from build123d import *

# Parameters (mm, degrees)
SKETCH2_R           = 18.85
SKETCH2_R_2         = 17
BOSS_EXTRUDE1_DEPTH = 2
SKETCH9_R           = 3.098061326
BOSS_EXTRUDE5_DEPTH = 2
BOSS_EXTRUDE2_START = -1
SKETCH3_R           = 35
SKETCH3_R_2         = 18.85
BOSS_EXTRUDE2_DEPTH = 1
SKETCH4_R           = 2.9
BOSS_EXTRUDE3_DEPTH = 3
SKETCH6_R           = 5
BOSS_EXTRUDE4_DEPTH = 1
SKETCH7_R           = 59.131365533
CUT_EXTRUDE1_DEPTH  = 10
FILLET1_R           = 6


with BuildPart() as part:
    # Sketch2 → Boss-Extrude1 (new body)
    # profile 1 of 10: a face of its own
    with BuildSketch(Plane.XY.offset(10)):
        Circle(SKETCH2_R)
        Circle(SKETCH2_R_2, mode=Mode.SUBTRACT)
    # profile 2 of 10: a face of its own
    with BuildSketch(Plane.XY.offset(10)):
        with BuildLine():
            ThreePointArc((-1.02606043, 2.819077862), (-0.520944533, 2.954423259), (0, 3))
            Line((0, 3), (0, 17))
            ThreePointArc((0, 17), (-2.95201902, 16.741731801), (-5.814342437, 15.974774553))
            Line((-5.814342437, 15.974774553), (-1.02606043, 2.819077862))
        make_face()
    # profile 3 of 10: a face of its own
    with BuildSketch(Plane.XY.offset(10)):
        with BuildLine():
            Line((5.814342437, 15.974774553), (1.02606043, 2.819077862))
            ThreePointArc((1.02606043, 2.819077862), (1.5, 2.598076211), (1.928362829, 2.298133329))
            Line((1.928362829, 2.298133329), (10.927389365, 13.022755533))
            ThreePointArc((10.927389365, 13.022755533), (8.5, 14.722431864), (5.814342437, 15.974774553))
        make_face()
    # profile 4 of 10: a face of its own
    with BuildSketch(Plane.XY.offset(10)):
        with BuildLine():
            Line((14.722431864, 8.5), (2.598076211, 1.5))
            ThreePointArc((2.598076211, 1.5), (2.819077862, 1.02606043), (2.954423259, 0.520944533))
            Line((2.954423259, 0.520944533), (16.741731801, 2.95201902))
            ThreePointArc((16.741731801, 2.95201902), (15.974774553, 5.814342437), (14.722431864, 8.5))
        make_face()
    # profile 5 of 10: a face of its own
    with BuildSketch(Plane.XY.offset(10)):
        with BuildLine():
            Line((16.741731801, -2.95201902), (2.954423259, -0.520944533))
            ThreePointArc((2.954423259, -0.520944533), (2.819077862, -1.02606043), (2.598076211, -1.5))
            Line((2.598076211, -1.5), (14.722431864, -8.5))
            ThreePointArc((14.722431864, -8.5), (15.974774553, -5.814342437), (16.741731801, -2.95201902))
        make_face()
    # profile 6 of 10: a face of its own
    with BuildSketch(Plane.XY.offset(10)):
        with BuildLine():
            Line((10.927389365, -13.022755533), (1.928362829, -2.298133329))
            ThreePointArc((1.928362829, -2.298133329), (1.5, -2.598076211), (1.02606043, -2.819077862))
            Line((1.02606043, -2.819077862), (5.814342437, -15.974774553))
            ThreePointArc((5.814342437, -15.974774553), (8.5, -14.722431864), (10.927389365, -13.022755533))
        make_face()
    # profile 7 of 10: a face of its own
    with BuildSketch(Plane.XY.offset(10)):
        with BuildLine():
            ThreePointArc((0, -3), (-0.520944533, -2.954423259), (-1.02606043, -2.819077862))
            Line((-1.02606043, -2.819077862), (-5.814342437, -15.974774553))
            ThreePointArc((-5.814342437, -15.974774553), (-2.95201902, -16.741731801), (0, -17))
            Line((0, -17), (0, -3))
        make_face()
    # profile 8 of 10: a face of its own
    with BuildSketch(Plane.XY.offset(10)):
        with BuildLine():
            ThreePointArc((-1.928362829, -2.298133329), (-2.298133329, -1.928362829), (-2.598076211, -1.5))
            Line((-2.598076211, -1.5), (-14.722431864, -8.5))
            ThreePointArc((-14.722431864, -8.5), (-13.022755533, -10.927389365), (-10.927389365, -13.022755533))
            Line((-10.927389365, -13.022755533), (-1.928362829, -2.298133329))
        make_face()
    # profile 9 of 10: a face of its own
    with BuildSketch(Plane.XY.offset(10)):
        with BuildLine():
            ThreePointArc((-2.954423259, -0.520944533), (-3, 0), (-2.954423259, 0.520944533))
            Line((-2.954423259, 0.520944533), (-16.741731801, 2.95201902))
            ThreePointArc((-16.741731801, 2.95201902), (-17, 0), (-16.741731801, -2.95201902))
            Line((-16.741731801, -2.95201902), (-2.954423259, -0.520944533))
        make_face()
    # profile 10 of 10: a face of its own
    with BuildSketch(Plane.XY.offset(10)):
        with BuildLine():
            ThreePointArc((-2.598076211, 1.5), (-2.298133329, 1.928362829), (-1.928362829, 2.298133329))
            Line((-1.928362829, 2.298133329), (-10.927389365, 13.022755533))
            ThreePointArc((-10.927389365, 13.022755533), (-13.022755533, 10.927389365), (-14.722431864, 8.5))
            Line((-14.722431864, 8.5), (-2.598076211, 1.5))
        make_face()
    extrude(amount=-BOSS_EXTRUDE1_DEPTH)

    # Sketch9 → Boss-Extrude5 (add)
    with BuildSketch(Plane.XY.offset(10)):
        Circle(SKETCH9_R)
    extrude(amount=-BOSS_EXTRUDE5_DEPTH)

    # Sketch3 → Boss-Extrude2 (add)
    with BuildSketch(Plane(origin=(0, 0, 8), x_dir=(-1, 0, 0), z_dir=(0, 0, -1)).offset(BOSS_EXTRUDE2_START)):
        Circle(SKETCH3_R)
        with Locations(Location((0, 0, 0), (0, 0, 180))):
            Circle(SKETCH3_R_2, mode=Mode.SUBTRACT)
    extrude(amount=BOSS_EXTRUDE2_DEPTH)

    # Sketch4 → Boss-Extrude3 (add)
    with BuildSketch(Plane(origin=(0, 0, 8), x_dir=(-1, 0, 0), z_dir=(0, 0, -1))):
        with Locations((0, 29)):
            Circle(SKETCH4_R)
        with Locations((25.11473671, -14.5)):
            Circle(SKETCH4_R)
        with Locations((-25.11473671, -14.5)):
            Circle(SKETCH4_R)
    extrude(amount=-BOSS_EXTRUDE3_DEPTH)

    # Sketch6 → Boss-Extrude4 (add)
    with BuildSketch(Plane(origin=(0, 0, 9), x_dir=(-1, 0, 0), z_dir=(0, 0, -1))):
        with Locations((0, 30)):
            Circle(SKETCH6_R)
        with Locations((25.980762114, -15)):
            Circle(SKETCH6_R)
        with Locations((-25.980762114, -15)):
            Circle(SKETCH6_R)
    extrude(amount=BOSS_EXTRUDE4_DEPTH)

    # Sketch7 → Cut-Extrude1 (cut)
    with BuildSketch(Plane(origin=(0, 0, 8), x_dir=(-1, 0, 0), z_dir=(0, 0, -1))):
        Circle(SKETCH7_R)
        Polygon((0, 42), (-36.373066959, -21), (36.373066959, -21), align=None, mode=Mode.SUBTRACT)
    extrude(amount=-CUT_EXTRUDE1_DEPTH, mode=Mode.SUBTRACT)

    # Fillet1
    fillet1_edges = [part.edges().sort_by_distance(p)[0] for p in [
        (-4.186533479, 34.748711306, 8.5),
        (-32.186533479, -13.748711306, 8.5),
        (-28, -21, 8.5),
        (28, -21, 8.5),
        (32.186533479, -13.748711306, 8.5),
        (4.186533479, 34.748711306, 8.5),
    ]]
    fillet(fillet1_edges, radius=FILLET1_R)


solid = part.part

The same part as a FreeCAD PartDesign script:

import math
import FreeCAD as App
import Part
import Sketcher
Q = App.Units.Quantity


def edges_at(feature, points):
    """Names of the edges that pass closest to the given points."""
    edges = feature.Shape.Edges
    near = lambda p: min(range(len(edges)), key=lambda i: edges[i].distToShape(Part.Vertex(*p))[0])
    return sorted({f"Edge{near(p) + 1}" for p in points})

doc = App.newDocument("Part")
body = doc.addObject("PartDesign::Body", "Body")

# Sketch on XY plane
sketch1 = body.newObject("Sketcher::SketchObject", "Sketch")
sketch1.AttachmentSupport = (doc.getObject("XY_Plane"), [""])
sketch1.MapMode = "FlatFace"
sketch1.AttachmentOffset = App.Placement(App.Vector(0, 0, 10), App.Rotation())
sketch1.addGeometry(Part.Circle(App.Vector(0, 0, 0), App.Vector(0, 0, 1), 18.9), False)
sketch1.addGeometry(Part.ArcOfCircle(Part.Circle(App.Vector(0, 0, 0), App.Vector(0, 0, 1), 17), math.radians(-10), math.radians(10)), False)
sketch1.addGeometry(Part.LineSegment(App.Vector(16.7, -3, 0), App.Vector(3, -0.5, 0)), False)
sketch1.addGeometry(Part.ArcOfCircle(Part.Circle(App.Vector(0, 0, 0), App.Vector(0, 0, 1), 3), math.radians(-30), math.radians(-10)), False)
sketch1.addGeometry(Part.LineSegment(App.Vector(2.6, -1.5, 0), App.Vector(14.7, -8.5, 0)), False)
sketch1.addGeometry(Part.ArcOfCircle(Part.Circle(App.Vector(0, 0, 0), App.Vector(0, 0, 1), 17), math.radians(-50), math.radians(-30)), False)
sketch1.addGeometry(Part.LineSegment(App.Vector(10.9, -13, 0), App.Vector(1.9, -2.3, 0)), False)
sketch1.addGeometry(Part.ArcOfCircle(Part.Circle(App.Vector(0, 0, 0), App.Vector(0, 0, 1), 3), math.radians(-70), math.radians(-50)), False)
sketch1.addGeometry(Part.LineSegment(App.Vector(1, -2.8, 0), App.Vector(5.8, -16, 0)), False)
sketch1.addGeometry(Part.ArcOfCircle(Part.Circle(App.Vector(0, 0, 0), App.Vector(0, 0, 1), 17), math.radians(-90), math.radians(-70)), False)
sketch1.addGeometry(Part.LineSegment(App.Vector(0, -17, 0), App.Vector(0, -3, 0)), False)
sketch1.addGeometry(Part.ArcOfCircle(Part.Circle(App.Vector(0, 0, 0), App.Vector(0, 0, 1), 3), math.radians(-110), math.radians(-90)), False)
sketch1.addGeometry(Part.LineSegment(App.Vector(-1, -2.8, 0), App.Vector(-5.8, -16, 0)), False)
sketch1.addGeometry(Part.ArcOfCircle(Part.Circle(App.Vector(0, 0, 0), App.Vector(0, 0, 1), 17), math.radians(-130), math.radians(-110)), False)
sketch1.addGeometry(Part.LineSegment(App.Vector(-10.9, -13, 0), App.Vector(-1.9, -2.3, 0)), False)
sketch1.addGeometry(Part.ArcOfCircle(Part.Circle(App.Vector(0, 0, 0), App.Vector(0, 0, 1), 3), math.radians(-150), math.radians(-130)), False)
sketch1.addGeometry(Part.LineSegment(App.Vector(-2.6, -1.5, 0), App.Vector(-14.7, -8.5, 0)), False)
sketch1.addGeometry(Part.ArcOfCircle(Part.Circle(App.Vector(0, 0, 0), App.Vector(0, 0, 1), 17), math.radians(-170), math.radians(-150)), False)
sketch1.addGeometry(Part.LineSegment(App.Vector(-16.7, -3, 0), App.Vector(-3, -0.5, 0)), False)
sketch1.addGeometry(Part.ArcOfCircle(Part.Circle(App.Vector(0, 0, 0), App.Vector(0, 0, 1), 3), math.radians(170), math.radians(190)), False)
sketch1.addGeometry(Part.LineSegment(App.Vector(-3, 0.5, 0), App.Vector(-16.7, 3, 0)), False)
sketch1.addGeometry(Part.ArcOfCircle(Part.Circle(App.Vector(0, 0, 0), App.Vector(0, 0, 1), 17), math.radians(150), math.radians(170)), False)
sketch1.addGeometry(Part.LineSegment(App.Vector(-14.7, 8.5, 0), App.Vector(-2.6, 1.5, 0)), False)
sketch1.addGeometry(Part.ArcOfCircle(Part.Circle(App.Vector(0, 0, 0), App.Vector(0, 0, 1), 3), math.radians(130), math.radians(150)), False)
sketch1.addGeometry(Part.LineSegment(App.Vector(-1.9, 2.3, 0), App.Vector(-10.9, 13, 0)), False)
sketch1.addGeometry(Part.ArcOfCircle(Part.Circle(App.Vector(0, 0, 0), App.Vector(0, 0, 1), 17), math.radians(110), math.radians(130)), False)
sketch1.addGeometry(Part.LineSegment(App.Vector(-5.8, 16, 0), App.Vector(-1, 2.8, 0)), False)
sketch1.addGeometry(Part.ArcOfCircle(Part.Circle(App.Vector(0, 0, 0), App.Vector(0, 0, 1), 3), math.radians(90), math.radians(110)), False)
sketch1.addGeometry(Part.LineSegment(App.Vector(0, 3, 0), App.Vector(0, 17, 0)), False)
sketch1.addGeometry(Part.ArcOfCircle(Part.Circle(App.Vector(0, 0, 0), App.Vector(0, 0, 1), 17), math.radians(70), math.radians(90)), False)
sketch1.addGeometry(Part.LineSegment(App.Vector(5.8, 16, 0), App.Vector(1, 2.8, 0)), False)
sketch1.addGeometry(Part.ArcOfCircle(Part.Circle(App.Vector(0, 0, 0), App.Vector(0, 0, 1), 3), math.radians(50), math.radians(70)), False)
sketch1.addGeometry(Part.LineSegment(App.Vector(1.9, 2.3, 0), App.Vector(10.9, 13, 0)), False)
sketch1.addGeometry(Part.ArcOfCircle(Part.Circle(App.Vector(0, 0, 0), App.Vector(0, 0, 1), 17), math.radians(30), math.radians(50)), False)
sketch1.addGeometry(Part.LineSegment(App.Vector(14.7, 8.5, 0), App.Vector(2.6, 1.5, 0)), False)
sketch1.addGeometry(Part.ArcOfCircle(Part.Circle(App.Vector(0, 0, 0), App.Vector(0, 0, 1), 3), math.radians(10), math.radians(30)), False)
sketch1.addGeometry(Part.LineSegment(App.Vector(3, 0.5, 0), App.Vector(16.7, 3, 0)), False)
sketch1.addConstraint(Sketcher.Constraint("Coincident", 1, 1, 2, 1))
sketch1.addConstraint(Sketcher.Constraint("Coincident", 2, 2, 3, 2))
sketch1.addConstraint(Sketcher.Constraint("Coincident", 3, 1, 4, 1))
sketch1.addConstraint(Sketcher.Constraint("Coincident", 4, 2, 5, 2))
sketch1.addConstraint(Sketcher.Constraint("Coincident", 5, 1, 6, 1))
sketch1.addConstraint(Sketcher.Constraint("Coincident", 6, 2, 7, 2))
sketch1.addConstraint(Sketcher.Constraint("Coincident", 7, 1, 8, 1))
sketch1.addConstraint(Sketcher.Constraint("Coincident", 8, 2, 9, 2))
sketch1.addConstraint(Sketcher.Constraint("Coincident", 9, 1, 10, 1))
sketch1.addConstraint(Sketcher.Constraint("Coincident", 10, 2, 11, 2))
sketch1.addConstraint(Sketcher.Constraint("Coincident", 11, 1, 12, 1))
sketch1.addConstraint(Sketcher.Constraint("Coincident", 12, 2, 13, 2))
sketch1.addConstraint(Sketcher.Constraint("Coincident", 13, 1, 14, 1))
sketch1.addConstraint(Sketcher.Constraint("Coincident", 14, 2, 15, 2))
sketch1.addConstraint(Sketcher.Constraint("Coincident", 15, 1, 16, 1))
sketch1.addConstraint(Sketcher.Constraint("Coincident", 16, 2, 17, 2))
sketch1.addConstraint(Sketcher.Constraint("Coincident", 17, 1, 18, 1))
sketch1.addConstraint(Sketcher.Constraint("Coincident", 18, 2, 19, 2))
sketch1.addConstraint(Sketcher.Constraint("Coincident", 19, 1, 20, 1))
sketch1.addConstraint(Sketcher.Constraint("Coincident", 20, 2, 21, 2))
sketch1.addConstraint(Sketcher.Constraint("Coincident", 21, 1, 22, 1))
sketch1.addConstraint(Sketcher.Constraint("Coincident", 22, 2, 23, 2))
sketch1.addConstraint(Sketcher.Constraint("Coincident", 23, 1, 24, 1))
sketch1.addConstraint(Sketcher.Constraint("Coincident", 24, 2, 25, 2))
sketch1.addConstraint(Sketcher.Constraint("Coincident", 25, 1, 26, 1))
sketch1.addConstraint(Sketcher.Constraint("Coincident", 26, 2, 27, 2))
sketch1.addConstraint(Sketcher.Constraint("Coincident", 27, 1, 28, 1))
sketch1.addConstraint(Sketcher.Constraint("Coincident", 28, 2, 29, 2))
sketch1.addConstraint(Sketcher.Constraint("Coincident", 29, 1, 30, 1))
sketch1.addConstraint(Sketcher.Constraint("Coincident", 30, 2, 31, 2))
sketch1.addConstraint(Sketcher.Constraint("Coincident", 31, 1, 32, 1))
sketch1.addConstraint(Sketcher.Constraint("Coincident", 32, 2, 33, 2))
sketch1.addConstraint(Sketcher.Constraint("Coincident", 33, 1, 34, 1))
sketch1.addConstraint(Sketcher.Constraint("Coincident", 34, 2, 35, 2))
sketch1.addConstraint(Sketcher.Constraint("Coincident", 35, 1, 36, 1))
sketch1.addConstraint(Sketcher.Constraint("Coincident", 36, 2, 1, 2))
sketch1.addConstraint(Sketcher.Constraint("Vertical", 10))
sketch1.addConstraint(Sketcher.Constraint("Vertical", 28))
sketch1.addConstraint(Sketcher.Constraint("Coincident", 0, 3, -1, 1))
sketch1.addConstraint(Sketcher.Constraint("Coincident", 1, 3, -1, 1))
sketch1.addConstraint(Sketcher.Constraint("Coincident", 3, 3, -1, 1))
sketch1.addConstraint(Sketcher.Constraint("Coincident", 5, 3, -1, 1))
sketch1.addConstraint(Sketcher.Constraint("Coincident", 7, 3, -1, 1))
sketch1.addConstraint(Sketcher.Constraint("Coincident", 9, 3, -1, 1))
sketch1.addConstraint(Sketcher.Constraint("Coincident", 11, 3, -1, 1))
sketch1.addConstraint(Sketcher.Constraint("Coincident", 13, 3, -1, 1))
sketch1.addConstraint(Sketcher.Constraint("Coincident", 15, 3, -1, 1))
sketch1.addConstraint(Sketcher.Constraint("Coincident", 17, 3, -1, 1))
sketch1.addConstraint(Sketcher.Constraint("Coincident", 19, 3, -1, 1))
sketch1.addConstraint(Sketcher.Constraint("Coincident", 21, 3, -1, 1))
sketch1.addConstraint(Sketcher.Constraint("Coincident", 23, 3, -1, 1))
sketch1.addConstraint(Sketcher.Constraint("Coincident", 25, 3, -1, 1))
sketch1.addConstraint(Sketcher.Constraint("Coincident", 27, 3, -1, 1))
sketch1.addConstraint(Sketcher.Constraint("Coincident", 29, 3, -1, 1))
sketch1.addConstraint(Sketcher.Constraint("Coincident", 31, 3, -1, 1))
sketch1.addConstraint(Sketcher.Constraint("Coincident", 33, 3, -1, 1))
sketch1.addConstraint(Sketcher.Constraint("Coincident", 35, 3, -1, 1))
sketch1.addConstraint(Sketcher.Constraint("Equal", 1, 5))
sketch1.addConstraint(Sketcher.Constraint("Equal", 3, 7))
sketch1.addConstraint(Sketcher.Constraint("Equal", 5, 9))
sketch1.addConstraint(Sketcher.Constraint("Equal", 7, 11))
sketch1.addConstraint(Sketcher.Constraint("Equal", 9, 13))
sketch1.addConstraint(Sketcher.Constraint("Equal", 11, 15))
sketch1.addConstraint(Sketcher.Constraint("Equal", 13, 17))
sketch1.addConstraint(Sketcher.Constraint("Equal", 15, 19))
sketch1.addConstraint(Sketcher.Constraint("Equal", 17, 21))
sketch1.addConstraint(Sketcher.Constraint("Equal", 19, 23))
sketch1.addConstraint(Sketcher.Constraint("Equal", 21, 25))
sketch1.addConstraint(Sketcher.Constraint("Equal", 23, 27))
sketch1.addConstraint(Sketcher.Constraint("Equal", 25, 29))
sketch1.addConstraint(Sketcher.Constraint("Equal", 27, 31))
sketch1.addConstraint(Sketcher.Constraint("Equal", 29, 33))
sketch1.addConstraint(Sketcher.Constraint("Equal", 31, 35))
sketch1.addConstraint(Sketcher.Constraint("PointOnObject", 9, 1, -2))
sketch1.addConstraint(Sketcher.Constraint("PointOnObject", 27, 1, -2))
sketch1.addConstraint(Sketcher.Constraint("Parallel", 2, 20))
sketch1.addConstraint(Sketcher.Constraint("Parallel", 4, 22))
sketch1.addConstraint(Sketcher.Constraint("Parallel", 6, 24))
sketch1.addConstraint(Sketcher.Constraint("Parallel", 8, 26))
sketch1.addConstraint(Sketcher.Constraint("Parallel", 12, 30))
sketch1.addConstraint(Sketcher.Constraint("Parallel", 14, 32))
sketch1.addConstraint(Sketcher.Constraint("Parallel", 16, 34))
sketch1.addConstraint(Sketcher.Constraint("Parallel", 18, 36))
sketch1.addConstraint(Sketcher.Constraint("Horizontal", 7, 1, 11, 1))
sketch1.addConstraint(Sketcher.Constraint("Horizontal", 8, 2, 12, 2))
sketch1.addConstraint(Sketcher.Constraint("Horizontal", 5, 1, 13, 1))
sketch1.addConstraint(Sketcher.Constraint("Horizontal", 6, 2, 14, 2))
sketch1.addConstraint(Sketcher.Constraint("Horizontal", 3, 1, 15, 1))
sketch1.addConstraint(Sketcher.Constraint("Horizontal", 4, 2, 16, 2))
sketch1.addConstraint(Sketcher.Constraint("Horizontal", 1, 1, 17, 1))
sketch1.addConstraint(Sketcher.Constraint("Horizontal", 2, 2, 18, 2))
sketch1.addConstraint(Sketcher.Constraint("Horizontal", 25, 1, 29, 1))
sketch1.addConstraint(Sketcher.Constraint("Horizontal", 23, 1, 31, 1))
sketch1.addConstraint(Sketcher.Constraint("Horizontal", 21, 1, 33, 1))
sketch1.addConstraint(Sketcher.Constraint("Horizontal", 19, 1, 35, 1))
sketch1.addConstraint(Sketcher.Constraint("Vertical", 18, 2, 19, 1))
sketch1.addConstraint(Sketcher.Constraint("Vertical", 16, 2, 21, 1))
sketch1.addConstraint(Sketcher.Constraint("Vertical", 14, 2, 23, 1))
sketch1.addConstraint(Sketcher.Constraint("Vertical", 12, 2, 25, 1))
sketch1.addConstraint(Sketcher.Constraint("Radius", 1, Q("17 mm")))
sketch1.addConstraint(Sketcher.Constraint("Radius", 3, Q("3 mm")))
sketch1.addConstraint(Sketcher.Constraint("Diameter", 0, Q("37.7 mm")))
sketch1.addConstraint(Sketcher.Constraint("Angle", 2, Q("170 deg")))
sketch1.addConstraint(Sketcher.Constraint("Angle", 4, Q("-30 deg")))
sketch1.addConstraint(Sketcher.Constraint("Angle", 6, Q("130 deg")))
sketch1.addConstraint(Sketcher.Constraint("Angle", 8, Q("-70 deg")))
sketch1.addConstraint(Sketcher.Constraint("DistanceY", 15, 1, 21, 1, Q("10 mm")))
sketch1.addConstraint(Sketcher.Constraint("DistanceX", 4, 2, 1, 1, Q("2.0193 mm")))
sketch1.addConstraint(Sketcher.Constraint("DistanceX", -1, 1, 5, 1, Q("10.927389 mm")))
sketch1.addConstraint(Sketcher.Constraint("DistanceX", -1, 1, 7, 1, Q("1.02606 mm")))
pad1 = body.newObject("PartDesign::Pad", "Pad")
pad1.Profile = sketch1
pad1.Length = 2
pad1.Reversed = True

# Sketch on XY plane
sketch2 = body.newObject("Sketcher::SketchObject", "Sketch001")
sketch2.AttachmentSupport = (doc.getObject("XY_Plane"), [""])
sketch2.MapMode = "FlatFace"
sketch2.AttachmentOffset = App.Placement(App.Vector(0, 0, 10), App.Rotation())
sketch2.addGeometry(Part.Circle(App.Vector(0, 0, 0), App.Vector(0, 0, 1), 3.1), False)
sketch2.addConstraint(Sketcher.Constraint("Coincident", 0, 3, -1, 1))
sketch2.addConstraint(Sketcher.Constraint("Diameter", 0, Q("6.196123 mm")))
pad2 = body.newObject("PartDesign::Pad", "Pad001")
pad2.Profile = sketch2
pad2.Length = 2
pad2.Reversed = True

# Sketch on XY plane
sketch3 = body.newObject("Sketcher::SketchObject", "Sketch002")
sketch3.AttachmentSupport = (doc.getObject("XY_Plane"), [""])
sketch3.MapMode = "FlatFace"
sketch3.AttachmentOffset = App.Placement(App.Vector(0, 0, 9), App.Rotation())
sketch3.addGeometry(Part.Circle(App.Vector(0, 0, 0), App.Vector(0, 0, 1), 35), False)
sketch3.addGeometry(Part.Circle(App.Vector(0, 0, 0), App.Vector(0, 0, 1), 19), False)
sketch3.addConstraint(Sketcher.Constraint("Coincident", 0, 3, -1, 1))
sketch3.addConstraint(Sketcher.Constraint("Coincident", 1, 3, -1, 1))
sketch3.addConstraint(Sketcher.Constraint("Diameter", 0, Q("70 mm")))
sketch3.addConstraint(Sketcher.Constraint("Diameter", 1, Q("37.7 mm")))
pad3 = body.newObject("PartDesign::Pad", "Pad002")
pad3.Profile = sketch3
pad3.Length = 1
pad3.Reversed = True

# Sketch on XY plane
sketch4 = body.newObject("Sketcher::SketchObject", "Sketch003")
sketch4.AttachmentSupport = (doc.getObject("XY_Plane"), [""])
sketch4.MapMode = "FlatFace"
sketch4.AttachmentOffset = App.Placement(App.Vector(0, 0, 8), App.Rotation())
sketch4.addGeometry(Part.Circle(App.Vector(0, 29, 0), App.Vector(0, 0, 1), 2.9), False)
sketch4.addGeometry(Part.Circle(App.Vector(-25.1, -14.5, 0), App.Vector(0, 0, 1), 2.9), False)
sketch4.addGeometry(Part.Circle(App.Vector(25.1, -14.5, 0), App.Vector(0, 0, 1), 2.9), False)
sketch4.addConstraint(Sketcher.Constraint("Equal", 0, 1))
sketch4.addConstraint(Sketcher.Constraint("Equal", 1, 2))
sketch4.addConstraint(Sketcher.Constraint("Symmetric", 1, 3, 2, 3, -2))
sketch4.addConstraint(Sketcher.Constraint("PointOnObject", 0, 3, -2))
sketch4.addConstraint(Sketcher.Constraint("Diameter", 0, Q("5.8 mm")))
sketch4.addConstraint(Sketcher.Constraint("DistanceY", -1, 1, 0, 3, Q("29 mm")))
sketch4.addConstraint(Sketcher.Constraint("DistanceY", 1, 3, -1, 1, Q("14.5 mm")))
sketch4.addConstraint(Sketcher.Constraint("DistanceX", 1, 3, -1, 1, Q("25.114737 mm")))
pad4 = body.newObject("PartDesign::Pad", "Pad003")
pad4.Profile = sketch4
pad4.Length = 3

# Sketch on XY plane
sketch5 = body.newObject("Sketcher::SketchObject", "Sketch004")
sketch5.AttachmentSupport = (doc.getObject("XY_Plane"), [""])
sketch5.MapMode = "FlatFace"
sketch5.AttachmentOffset = App.Placement(App.Vector(0, 0, 9), App.Rotation())
sketch5.addGeometry(Part.Circle(App.Vector(0, 30, 0), App.Vector(0, 0, 1), 5), False)
sketch5.addGeometry(Part.Circle(App.Vector(-26, -15, 0), App.Vector(0, 0, 1), 5), False)
sketch5.addGeometry(Part.Circle(App.Vector(26, -15, 0), App.Vector(0, 0, 1), 5), False)
sketch5.addConstraint(Sketcher.Constraint("Equal", 0, 1))
sketch5.addConstraint(Sketcher.Constraint("Equal", 1, 2))
sketch5.addConstraint(Sketcher.Constraint("Symmetric", 1, 3, 2, 3, -2))
sketch5.addConstraint(Sketcher.Constraint("PointOnObject", 0, 3, -2))
sketch5.addConstraint(Sketcher.Constraint("Diameter", 0, Q("10 mm")))
sketch5.addConstraint(Sketcher.Constraint("DistanceY", -1, 1, 0, 3, Q("30 mm")))
sketch5.addConstraint(Sketcher.Constraint("DistanceY", 1, 3, -1, 1, Q("15 mm")))
sketch5.addConstraint(Sketcher.Constraint("DistanceX", 1, 3, -1, 1, Q("25.980762 mm")))
pad5 = body.newObject("PartDesign::Pad", "Pad004")
pad5.Profile = sketch5
pad5.Length = 1
pad5.Reversed = True

# Sketch on XY plane
sketch6 = body.newObject("Sketcher::SketchObject", "Sketch005")
sketch6.AttachmentSupport = (doc.getObject("XY_Plane"), [""])
sketch6.MapMode = "FlatFace"
sketch6.AttachmentOffset = App.Placement(App.Vector(0, 0, 8), App.Rotation())
sketch6.addGeometry(Part.Circle(App.Vector(0, 0, 0), App.Vector(0, 0, 1), 59), False)
sketch6.addGeometry(Part.LineSegment(App.Vector(36, -21, 0), App.Vector(0, 42, 0)), False)
sketch6.addGeometry(Part.LineSegment(App.Vector(0, 42, 0), App.Vector(-36, -21, 0)), False)
sketch6.addGeometry(Part.LineSegment(App.Vector(-36, -21, 0), App.Vector(36, -21, 0)), False)
sketch6.addConstraint(Sketcher.Constraint("Coincident", 1, 2, 2, 1))
sketch6.addConstraint(Sketcher.Constraint("Coincident", 2, 2, 3, 1))
sketch6.addConstraint(Sketcher.Constraint("Coincident", 3, 2, 1, 1))
sketch6.addConstraint(Sketcher.Constraint("Horizontal", 3))
sketch6.addConstraint(Sketcher.Constraint("Coincident", 0, 3, -1, 1))
sketch6.addConstraint(Sketcher.Constraint("PointOnObject", 1, 2, -2))
sketch6.addConstraint(Sketcher.Constraint("Equal", 1, 2))
sketch6.addConstraint(Sketcher.Constraint("Angle", 1, Q("120 deg")))
sketch6.addConstraint(Sketcher.Constraint("DistanceY", -1, 1, 1, 2, Q("42 mm")))
sketch6.addConstraint(Sketcher.Constraint("DistanceY", 2, 2, -1, 1, Q("21 mm")))
sketch6.addConstraint(Sketcher.Constraint("Diameter", 0, Q("118.262731 mm")))
pocket1 = body.newObject("PartDesign::Pocket", "Pocket")
pocket1.Profile = sketch6
pocket1.Length = 10
pocket1.Reversed = True
doc.recompute()

fillet = body.newObject("PartDesign::Fillet", "Fillet")
fillet.Base = (pocket1, edges_at(pocket1, [
    (-4.187, 34.749, 8.5),
    (-32.187, -13.749, 8.5),
    (-28, -21, 8.5),
    (28, -21, 8.5),
    (32.187, -13.749, 8.5),
    (4.187, 34.749, 8.5),
]))
fillet.Radius = 6

doc.recompute()
